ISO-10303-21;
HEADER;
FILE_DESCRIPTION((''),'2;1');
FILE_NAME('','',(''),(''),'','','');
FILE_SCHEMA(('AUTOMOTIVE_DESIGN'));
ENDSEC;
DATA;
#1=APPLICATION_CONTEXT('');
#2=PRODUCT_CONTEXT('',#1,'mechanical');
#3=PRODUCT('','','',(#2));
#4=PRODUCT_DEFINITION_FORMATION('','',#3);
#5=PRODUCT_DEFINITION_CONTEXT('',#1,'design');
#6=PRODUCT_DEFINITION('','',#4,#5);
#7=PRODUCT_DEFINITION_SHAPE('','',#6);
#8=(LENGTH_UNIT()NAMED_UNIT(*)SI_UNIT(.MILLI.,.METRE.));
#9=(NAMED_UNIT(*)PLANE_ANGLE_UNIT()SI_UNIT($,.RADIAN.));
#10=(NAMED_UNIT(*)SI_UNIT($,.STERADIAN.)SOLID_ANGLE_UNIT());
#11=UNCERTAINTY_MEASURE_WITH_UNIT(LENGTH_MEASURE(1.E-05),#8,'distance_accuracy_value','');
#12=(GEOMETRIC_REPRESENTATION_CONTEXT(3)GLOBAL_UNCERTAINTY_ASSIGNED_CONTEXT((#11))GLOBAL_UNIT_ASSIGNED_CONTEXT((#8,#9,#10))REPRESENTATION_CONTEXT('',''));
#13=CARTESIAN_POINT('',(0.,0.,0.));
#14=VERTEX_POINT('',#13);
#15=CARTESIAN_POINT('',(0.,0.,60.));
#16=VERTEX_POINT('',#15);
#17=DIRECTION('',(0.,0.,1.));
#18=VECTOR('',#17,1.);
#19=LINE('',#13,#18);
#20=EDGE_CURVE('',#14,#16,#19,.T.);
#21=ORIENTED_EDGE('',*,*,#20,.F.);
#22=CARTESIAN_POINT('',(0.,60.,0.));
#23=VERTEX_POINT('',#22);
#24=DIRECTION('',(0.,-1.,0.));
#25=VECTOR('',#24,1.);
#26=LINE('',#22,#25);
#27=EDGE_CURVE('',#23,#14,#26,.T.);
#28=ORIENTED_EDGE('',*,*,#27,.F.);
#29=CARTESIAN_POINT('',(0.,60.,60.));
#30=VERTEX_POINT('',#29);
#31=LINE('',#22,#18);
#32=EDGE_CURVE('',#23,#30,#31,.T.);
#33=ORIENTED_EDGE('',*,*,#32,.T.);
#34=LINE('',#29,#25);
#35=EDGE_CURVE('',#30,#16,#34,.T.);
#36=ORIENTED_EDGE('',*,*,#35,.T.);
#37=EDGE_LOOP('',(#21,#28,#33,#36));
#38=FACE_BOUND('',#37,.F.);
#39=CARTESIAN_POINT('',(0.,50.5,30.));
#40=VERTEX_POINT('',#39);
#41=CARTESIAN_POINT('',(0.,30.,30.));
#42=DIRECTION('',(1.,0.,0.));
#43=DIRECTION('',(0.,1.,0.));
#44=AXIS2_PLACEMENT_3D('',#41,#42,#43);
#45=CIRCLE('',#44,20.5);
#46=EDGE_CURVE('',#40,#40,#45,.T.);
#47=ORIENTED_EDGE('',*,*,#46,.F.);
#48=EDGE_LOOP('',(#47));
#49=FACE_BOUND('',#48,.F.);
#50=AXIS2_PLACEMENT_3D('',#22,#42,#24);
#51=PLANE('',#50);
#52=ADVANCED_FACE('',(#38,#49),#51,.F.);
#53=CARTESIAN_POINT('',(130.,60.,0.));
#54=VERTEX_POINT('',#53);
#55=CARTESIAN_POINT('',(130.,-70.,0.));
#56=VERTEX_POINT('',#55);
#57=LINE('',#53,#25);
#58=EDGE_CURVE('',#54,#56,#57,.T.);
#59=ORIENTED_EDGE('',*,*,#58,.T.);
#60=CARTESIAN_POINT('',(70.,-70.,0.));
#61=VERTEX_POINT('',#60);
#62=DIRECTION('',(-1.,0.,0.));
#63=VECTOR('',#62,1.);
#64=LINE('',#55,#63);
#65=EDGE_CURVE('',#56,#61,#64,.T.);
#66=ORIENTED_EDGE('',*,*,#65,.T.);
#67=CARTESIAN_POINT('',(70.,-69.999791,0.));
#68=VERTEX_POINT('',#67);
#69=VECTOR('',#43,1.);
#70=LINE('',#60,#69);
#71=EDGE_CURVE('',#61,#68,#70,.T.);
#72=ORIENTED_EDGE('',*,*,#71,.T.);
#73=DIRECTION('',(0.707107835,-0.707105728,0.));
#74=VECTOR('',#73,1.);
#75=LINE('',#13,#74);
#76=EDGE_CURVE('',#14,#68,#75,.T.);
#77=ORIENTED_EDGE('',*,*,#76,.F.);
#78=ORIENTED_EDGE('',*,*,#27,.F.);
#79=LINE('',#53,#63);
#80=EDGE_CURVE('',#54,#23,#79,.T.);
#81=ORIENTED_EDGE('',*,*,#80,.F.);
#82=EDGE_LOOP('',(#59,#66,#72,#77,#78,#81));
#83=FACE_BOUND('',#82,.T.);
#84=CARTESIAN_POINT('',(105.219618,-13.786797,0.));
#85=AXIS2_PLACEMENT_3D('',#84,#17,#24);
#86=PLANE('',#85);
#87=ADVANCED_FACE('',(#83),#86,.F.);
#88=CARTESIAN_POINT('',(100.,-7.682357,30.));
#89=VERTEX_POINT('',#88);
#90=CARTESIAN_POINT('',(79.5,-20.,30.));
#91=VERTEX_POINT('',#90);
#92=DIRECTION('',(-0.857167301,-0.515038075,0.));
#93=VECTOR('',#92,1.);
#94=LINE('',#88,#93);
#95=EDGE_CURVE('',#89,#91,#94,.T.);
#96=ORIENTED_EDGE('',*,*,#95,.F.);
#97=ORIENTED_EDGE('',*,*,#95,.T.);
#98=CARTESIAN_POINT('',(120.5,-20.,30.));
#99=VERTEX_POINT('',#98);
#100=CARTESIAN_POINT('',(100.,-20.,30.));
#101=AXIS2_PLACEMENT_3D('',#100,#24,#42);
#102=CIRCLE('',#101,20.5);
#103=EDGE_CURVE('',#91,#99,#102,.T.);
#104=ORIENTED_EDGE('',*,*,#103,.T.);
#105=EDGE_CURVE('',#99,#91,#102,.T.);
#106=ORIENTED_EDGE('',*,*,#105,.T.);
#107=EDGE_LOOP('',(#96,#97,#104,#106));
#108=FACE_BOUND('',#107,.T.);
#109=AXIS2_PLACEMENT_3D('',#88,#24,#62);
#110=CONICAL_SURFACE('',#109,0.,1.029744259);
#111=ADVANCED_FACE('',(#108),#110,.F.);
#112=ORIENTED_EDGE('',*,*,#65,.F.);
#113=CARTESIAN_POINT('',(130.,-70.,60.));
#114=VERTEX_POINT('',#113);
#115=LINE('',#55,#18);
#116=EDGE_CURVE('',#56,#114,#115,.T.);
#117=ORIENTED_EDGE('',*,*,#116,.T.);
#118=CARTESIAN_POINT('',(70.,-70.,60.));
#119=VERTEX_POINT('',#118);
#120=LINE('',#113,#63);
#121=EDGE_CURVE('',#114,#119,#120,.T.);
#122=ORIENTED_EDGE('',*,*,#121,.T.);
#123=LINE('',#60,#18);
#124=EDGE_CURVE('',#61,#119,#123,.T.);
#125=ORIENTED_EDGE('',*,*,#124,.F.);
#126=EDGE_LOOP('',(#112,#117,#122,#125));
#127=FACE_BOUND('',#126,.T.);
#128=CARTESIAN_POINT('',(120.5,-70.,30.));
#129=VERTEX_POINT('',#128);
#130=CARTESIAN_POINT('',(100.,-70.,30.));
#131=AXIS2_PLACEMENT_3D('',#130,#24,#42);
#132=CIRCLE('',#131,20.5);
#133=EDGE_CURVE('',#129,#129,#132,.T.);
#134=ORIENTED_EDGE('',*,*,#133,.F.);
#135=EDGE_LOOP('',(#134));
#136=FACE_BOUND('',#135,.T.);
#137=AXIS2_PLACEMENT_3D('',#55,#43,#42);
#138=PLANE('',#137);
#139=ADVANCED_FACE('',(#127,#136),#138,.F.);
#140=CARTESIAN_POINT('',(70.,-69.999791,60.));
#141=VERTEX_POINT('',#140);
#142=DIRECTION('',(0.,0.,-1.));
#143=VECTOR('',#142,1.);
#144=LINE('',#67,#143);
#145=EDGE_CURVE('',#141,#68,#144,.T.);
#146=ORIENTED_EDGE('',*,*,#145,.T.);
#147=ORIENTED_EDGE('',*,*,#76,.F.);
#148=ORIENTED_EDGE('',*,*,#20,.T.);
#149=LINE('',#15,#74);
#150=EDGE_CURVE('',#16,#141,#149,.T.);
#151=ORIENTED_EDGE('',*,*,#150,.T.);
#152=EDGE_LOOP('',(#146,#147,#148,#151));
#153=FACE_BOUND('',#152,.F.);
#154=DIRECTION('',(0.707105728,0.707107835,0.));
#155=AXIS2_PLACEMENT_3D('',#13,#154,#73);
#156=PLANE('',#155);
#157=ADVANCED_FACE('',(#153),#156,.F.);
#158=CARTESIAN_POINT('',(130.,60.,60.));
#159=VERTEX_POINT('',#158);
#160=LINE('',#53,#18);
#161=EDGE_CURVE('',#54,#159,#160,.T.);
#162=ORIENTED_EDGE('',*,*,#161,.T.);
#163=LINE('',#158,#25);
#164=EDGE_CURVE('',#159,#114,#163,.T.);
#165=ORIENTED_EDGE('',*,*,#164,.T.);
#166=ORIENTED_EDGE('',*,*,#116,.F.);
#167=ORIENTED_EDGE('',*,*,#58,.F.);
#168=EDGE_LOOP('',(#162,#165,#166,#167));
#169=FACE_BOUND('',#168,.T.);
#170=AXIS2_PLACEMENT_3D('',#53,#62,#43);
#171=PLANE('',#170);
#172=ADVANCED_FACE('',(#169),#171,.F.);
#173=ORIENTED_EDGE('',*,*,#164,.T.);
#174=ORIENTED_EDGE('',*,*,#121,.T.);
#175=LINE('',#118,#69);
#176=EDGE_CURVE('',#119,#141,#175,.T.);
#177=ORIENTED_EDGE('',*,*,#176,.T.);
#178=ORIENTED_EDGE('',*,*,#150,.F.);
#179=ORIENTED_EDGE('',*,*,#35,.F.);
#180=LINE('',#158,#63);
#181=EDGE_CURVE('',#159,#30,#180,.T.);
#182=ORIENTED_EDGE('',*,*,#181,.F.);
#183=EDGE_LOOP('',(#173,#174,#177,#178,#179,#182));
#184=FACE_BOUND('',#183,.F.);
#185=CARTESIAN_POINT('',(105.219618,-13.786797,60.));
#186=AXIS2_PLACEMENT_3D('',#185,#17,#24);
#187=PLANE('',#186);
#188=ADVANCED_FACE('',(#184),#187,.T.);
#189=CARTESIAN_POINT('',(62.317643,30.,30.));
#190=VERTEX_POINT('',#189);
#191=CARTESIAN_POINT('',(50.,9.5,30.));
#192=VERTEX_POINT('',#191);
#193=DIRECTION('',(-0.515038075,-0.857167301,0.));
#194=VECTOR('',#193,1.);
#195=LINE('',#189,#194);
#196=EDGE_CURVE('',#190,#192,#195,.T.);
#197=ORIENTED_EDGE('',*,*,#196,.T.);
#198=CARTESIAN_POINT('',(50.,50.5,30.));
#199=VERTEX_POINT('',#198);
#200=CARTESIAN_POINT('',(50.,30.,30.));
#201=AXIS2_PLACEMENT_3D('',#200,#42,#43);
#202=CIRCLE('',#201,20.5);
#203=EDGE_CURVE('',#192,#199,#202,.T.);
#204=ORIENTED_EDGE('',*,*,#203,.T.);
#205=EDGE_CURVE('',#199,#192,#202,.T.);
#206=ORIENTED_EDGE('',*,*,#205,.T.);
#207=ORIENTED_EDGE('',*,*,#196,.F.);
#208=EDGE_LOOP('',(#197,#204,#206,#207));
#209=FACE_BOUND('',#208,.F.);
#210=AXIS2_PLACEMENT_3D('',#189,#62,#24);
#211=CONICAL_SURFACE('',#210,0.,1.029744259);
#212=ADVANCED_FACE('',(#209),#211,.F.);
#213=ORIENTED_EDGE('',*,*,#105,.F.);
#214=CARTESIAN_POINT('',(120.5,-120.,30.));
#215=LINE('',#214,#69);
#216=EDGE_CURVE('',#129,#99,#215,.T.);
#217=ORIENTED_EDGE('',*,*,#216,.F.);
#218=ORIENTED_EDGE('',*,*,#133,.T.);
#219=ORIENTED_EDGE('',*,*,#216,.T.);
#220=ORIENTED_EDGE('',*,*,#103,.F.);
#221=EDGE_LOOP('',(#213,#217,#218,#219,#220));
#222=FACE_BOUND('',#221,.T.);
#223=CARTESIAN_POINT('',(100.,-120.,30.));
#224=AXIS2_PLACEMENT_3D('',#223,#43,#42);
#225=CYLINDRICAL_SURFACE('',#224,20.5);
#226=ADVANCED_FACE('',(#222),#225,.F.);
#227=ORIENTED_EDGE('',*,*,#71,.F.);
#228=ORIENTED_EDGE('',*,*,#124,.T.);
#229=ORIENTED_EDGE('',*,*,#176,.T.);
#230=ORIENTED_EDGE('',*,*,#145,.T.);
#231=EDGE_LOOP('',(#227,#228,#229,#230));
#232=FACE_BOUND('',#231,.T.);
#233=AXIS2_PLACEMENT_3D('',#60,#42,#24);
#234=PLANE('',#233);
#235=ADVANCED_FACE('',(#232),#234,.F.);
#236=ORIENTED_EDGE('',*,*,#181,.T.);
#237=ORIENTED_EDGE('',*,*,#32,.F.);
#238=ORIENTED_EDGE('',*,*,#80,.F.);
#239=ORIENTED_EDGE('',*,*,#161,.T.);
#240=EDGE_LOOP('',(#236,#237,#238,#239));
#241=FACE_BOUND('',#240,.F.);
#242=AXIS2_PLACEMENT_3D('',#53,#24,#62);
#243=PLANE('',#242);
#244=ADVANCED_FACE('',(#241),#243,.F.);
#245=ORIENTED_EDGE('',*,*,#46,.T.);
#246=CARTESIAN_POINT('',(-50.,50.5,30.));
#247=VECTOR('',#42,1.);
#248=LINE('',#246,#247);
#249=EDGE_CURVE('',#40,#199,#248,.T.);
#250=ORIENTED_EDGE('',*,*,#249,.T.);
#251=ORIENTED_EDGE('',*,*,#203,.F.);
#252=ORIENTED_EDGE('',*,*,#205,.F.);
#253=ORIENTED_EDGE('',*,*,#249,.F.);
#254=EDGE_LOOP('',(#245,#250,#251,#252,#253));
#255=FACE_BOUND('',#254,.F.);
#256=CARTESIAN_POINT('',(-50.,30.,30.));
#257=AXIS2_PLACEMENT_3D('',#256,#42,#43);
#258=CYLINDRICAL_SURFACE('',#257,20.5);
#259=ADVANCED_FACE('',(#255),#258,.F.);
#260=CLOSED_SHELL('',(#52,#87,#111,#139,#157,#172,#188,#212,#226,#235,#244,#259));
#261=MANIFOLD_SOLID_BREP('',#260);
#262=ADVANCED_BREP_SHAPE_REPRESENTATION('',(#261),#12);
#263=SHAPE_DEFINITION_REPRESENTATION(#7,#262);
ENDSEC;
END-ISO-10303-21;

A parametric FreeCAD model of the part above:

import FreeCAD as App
import Part
import Sketcher

V = App.Vector

doc = App.newDocument("Part")
body = doc.addObject("PartDesign::Body", "Body")

# Sketch on XY plane
sketch1 = doc.addObject("Sketcher::SketchObject", "Sketch")
body.addObject(sketch1)
sketch1.AttachmentSupport = (doc.XY_Plane, [""])
sketch1.MapMode = "FlatFace"
sketch1.addGeometry([
    Part.LineSegment(V(130, 60, 0), V(0, 60, 0)),
    Part.LineSegment(V(0, 60, 0), V(0, 0, 0)),
    Part.LineSegment(V(0, 0, 0), V(70, 0, 0)),
    Part.LineSegment(V(70, 0, 0), V(130, 60, 0)),
], False)
sketch1.addConstraint([
    Sketcher.Constraint("Coincident", 0, 2, 1, 1),
    Sketcher.Constraint("Coincident", 1, 2, 2, 1),
    Sketcher.Constraint("Coincident", 2, 2, 3, 1),
    Sketcher.Constraint("Coincident", 3, 2, 0, 1),
    Sketcher.Constraint("Horizontal", 0),
    Sketcher.Constraint("Vertical", 1),
    Sketcher.Constraint("Horizontal", 2),
    Sketcher.Constraint("Coincident", 1, 2, -1, 1),
    Sketcher.Constraint("DistanceX", 0, 2, 0, 1, 130.0),
    Sketcher.Constraint("DistanceX", 2, 1, 2, 2, 70.0),
    Sketcher.Constraint("DistanceY", 1, 2, 1, 1, 60.0),
])
pad1 = doc.addObject("PartDesign::Pad", "Pad")
body.addObject(pad1)
pad1.Profile = sketch1
pad1.Length = 60

# Sketch on YZ plane
sketch2 = doc.addObject("Sketcher::SketchObject", "Sketch001")
body.addObject(sketch2)
sketch2.AttachmentSupport = (doc.YZ_Plane, [""])
sketch2.MapMode = "FlatFace"
sketch2.addGeometry(Part.Circle(V(30, 30, 0), V(0, 0, 1), 20), False)
sketch2.addConstraint([
    Sketcher.Constraint("Diameter", 0, 41.0),
    Sketcher.Constraint("DistanceX", -1, 1, 0, 3, 30.0),
    Sketcher.Constraint("DistanceY", -1, 1, 0, 3, 30.0),
])
doc.recompute()
hole = doc.addObject("PartDesign::Hole", "Hole")
body.addObject(hole)
hole.Profile = sketch2
hole.ThreadType = "None"
hole.Diameter = 41
hole.DepthType = "Dimension"
hole.Depth = 50
hole.DrillPoint = "Angled"
hole.DrillPointAngle = 118
hole.Reversed = True
body2 = doc.addObject("PartDesign::Body", "Body001")
doc.recompute()

body2.BaseFeature = body
doc.recompute()

mirroring = doc.addObject("Part::Mirroring", "Mirroring")
mirroring.Source = body
mirroring.Base = V(100, 30, 30)
mirroring.Normal = V(0.707106781, -0.707106781, 0)
body3 = doc.addObject("PartDesign::Body", "Body002")
body3.BaseFeature = mirroring
boolean = doc.addObject("PartDesign::Boolean", "Boolean")
body2.addObject(boolean)
boolean.Type = "Fuse"
boolean.addObjects([body3])
doc.recompute()

# Sketch on XY plane
sketch3 = doc.addObject("Sketcher::SketchObject", "Sketch002")
body2.addObject(sketch3)
sketch3.AttachmentSupport = (doc.getObject("XY_Plane001"), [""])
sketch3.MapMode = "FlatFace"
sketch3.addGeometry([
    Part.LineSegment(V(70, 0, 0), V(0, 0, 0)),
    Part.LineSegment(V(0, 0, 0), V(70, -70, 0)),
    Part.LineSegment(V(70, -70, 0), V(70, 0, 0)),
], False)
sketch3.addConstraint([
    Sketcher.Constraint("Coincident", 0, 2, 1, 1),
    Sketcher.Constraint("Coincident", 1, 2, 2, 1),
    Sketcher.Constraint("Coincident", 2, 2, 0, 1),
    Sketcher.Constraint("Horizontal", 0),
    Sketcher.Constraint("Vertical", 2),
    Sketcher.Constraint("Coincident", 0, 2, -1, 1),
    Sketcher.Constraint("DistanceX", 0, 2, 0, 1, 70.00012),
    Sketcher.Constraint("DistanceY", 2, 1, 2, 2, 69.999911),
])
pad2 = doc.addObject("PartDesign::Pad", "Pad001")
body2.addObject(pad2)
pad2.Profile = sketch3
pad2.Length = 60
mirroring.Visibility = False

doc.recompute()
